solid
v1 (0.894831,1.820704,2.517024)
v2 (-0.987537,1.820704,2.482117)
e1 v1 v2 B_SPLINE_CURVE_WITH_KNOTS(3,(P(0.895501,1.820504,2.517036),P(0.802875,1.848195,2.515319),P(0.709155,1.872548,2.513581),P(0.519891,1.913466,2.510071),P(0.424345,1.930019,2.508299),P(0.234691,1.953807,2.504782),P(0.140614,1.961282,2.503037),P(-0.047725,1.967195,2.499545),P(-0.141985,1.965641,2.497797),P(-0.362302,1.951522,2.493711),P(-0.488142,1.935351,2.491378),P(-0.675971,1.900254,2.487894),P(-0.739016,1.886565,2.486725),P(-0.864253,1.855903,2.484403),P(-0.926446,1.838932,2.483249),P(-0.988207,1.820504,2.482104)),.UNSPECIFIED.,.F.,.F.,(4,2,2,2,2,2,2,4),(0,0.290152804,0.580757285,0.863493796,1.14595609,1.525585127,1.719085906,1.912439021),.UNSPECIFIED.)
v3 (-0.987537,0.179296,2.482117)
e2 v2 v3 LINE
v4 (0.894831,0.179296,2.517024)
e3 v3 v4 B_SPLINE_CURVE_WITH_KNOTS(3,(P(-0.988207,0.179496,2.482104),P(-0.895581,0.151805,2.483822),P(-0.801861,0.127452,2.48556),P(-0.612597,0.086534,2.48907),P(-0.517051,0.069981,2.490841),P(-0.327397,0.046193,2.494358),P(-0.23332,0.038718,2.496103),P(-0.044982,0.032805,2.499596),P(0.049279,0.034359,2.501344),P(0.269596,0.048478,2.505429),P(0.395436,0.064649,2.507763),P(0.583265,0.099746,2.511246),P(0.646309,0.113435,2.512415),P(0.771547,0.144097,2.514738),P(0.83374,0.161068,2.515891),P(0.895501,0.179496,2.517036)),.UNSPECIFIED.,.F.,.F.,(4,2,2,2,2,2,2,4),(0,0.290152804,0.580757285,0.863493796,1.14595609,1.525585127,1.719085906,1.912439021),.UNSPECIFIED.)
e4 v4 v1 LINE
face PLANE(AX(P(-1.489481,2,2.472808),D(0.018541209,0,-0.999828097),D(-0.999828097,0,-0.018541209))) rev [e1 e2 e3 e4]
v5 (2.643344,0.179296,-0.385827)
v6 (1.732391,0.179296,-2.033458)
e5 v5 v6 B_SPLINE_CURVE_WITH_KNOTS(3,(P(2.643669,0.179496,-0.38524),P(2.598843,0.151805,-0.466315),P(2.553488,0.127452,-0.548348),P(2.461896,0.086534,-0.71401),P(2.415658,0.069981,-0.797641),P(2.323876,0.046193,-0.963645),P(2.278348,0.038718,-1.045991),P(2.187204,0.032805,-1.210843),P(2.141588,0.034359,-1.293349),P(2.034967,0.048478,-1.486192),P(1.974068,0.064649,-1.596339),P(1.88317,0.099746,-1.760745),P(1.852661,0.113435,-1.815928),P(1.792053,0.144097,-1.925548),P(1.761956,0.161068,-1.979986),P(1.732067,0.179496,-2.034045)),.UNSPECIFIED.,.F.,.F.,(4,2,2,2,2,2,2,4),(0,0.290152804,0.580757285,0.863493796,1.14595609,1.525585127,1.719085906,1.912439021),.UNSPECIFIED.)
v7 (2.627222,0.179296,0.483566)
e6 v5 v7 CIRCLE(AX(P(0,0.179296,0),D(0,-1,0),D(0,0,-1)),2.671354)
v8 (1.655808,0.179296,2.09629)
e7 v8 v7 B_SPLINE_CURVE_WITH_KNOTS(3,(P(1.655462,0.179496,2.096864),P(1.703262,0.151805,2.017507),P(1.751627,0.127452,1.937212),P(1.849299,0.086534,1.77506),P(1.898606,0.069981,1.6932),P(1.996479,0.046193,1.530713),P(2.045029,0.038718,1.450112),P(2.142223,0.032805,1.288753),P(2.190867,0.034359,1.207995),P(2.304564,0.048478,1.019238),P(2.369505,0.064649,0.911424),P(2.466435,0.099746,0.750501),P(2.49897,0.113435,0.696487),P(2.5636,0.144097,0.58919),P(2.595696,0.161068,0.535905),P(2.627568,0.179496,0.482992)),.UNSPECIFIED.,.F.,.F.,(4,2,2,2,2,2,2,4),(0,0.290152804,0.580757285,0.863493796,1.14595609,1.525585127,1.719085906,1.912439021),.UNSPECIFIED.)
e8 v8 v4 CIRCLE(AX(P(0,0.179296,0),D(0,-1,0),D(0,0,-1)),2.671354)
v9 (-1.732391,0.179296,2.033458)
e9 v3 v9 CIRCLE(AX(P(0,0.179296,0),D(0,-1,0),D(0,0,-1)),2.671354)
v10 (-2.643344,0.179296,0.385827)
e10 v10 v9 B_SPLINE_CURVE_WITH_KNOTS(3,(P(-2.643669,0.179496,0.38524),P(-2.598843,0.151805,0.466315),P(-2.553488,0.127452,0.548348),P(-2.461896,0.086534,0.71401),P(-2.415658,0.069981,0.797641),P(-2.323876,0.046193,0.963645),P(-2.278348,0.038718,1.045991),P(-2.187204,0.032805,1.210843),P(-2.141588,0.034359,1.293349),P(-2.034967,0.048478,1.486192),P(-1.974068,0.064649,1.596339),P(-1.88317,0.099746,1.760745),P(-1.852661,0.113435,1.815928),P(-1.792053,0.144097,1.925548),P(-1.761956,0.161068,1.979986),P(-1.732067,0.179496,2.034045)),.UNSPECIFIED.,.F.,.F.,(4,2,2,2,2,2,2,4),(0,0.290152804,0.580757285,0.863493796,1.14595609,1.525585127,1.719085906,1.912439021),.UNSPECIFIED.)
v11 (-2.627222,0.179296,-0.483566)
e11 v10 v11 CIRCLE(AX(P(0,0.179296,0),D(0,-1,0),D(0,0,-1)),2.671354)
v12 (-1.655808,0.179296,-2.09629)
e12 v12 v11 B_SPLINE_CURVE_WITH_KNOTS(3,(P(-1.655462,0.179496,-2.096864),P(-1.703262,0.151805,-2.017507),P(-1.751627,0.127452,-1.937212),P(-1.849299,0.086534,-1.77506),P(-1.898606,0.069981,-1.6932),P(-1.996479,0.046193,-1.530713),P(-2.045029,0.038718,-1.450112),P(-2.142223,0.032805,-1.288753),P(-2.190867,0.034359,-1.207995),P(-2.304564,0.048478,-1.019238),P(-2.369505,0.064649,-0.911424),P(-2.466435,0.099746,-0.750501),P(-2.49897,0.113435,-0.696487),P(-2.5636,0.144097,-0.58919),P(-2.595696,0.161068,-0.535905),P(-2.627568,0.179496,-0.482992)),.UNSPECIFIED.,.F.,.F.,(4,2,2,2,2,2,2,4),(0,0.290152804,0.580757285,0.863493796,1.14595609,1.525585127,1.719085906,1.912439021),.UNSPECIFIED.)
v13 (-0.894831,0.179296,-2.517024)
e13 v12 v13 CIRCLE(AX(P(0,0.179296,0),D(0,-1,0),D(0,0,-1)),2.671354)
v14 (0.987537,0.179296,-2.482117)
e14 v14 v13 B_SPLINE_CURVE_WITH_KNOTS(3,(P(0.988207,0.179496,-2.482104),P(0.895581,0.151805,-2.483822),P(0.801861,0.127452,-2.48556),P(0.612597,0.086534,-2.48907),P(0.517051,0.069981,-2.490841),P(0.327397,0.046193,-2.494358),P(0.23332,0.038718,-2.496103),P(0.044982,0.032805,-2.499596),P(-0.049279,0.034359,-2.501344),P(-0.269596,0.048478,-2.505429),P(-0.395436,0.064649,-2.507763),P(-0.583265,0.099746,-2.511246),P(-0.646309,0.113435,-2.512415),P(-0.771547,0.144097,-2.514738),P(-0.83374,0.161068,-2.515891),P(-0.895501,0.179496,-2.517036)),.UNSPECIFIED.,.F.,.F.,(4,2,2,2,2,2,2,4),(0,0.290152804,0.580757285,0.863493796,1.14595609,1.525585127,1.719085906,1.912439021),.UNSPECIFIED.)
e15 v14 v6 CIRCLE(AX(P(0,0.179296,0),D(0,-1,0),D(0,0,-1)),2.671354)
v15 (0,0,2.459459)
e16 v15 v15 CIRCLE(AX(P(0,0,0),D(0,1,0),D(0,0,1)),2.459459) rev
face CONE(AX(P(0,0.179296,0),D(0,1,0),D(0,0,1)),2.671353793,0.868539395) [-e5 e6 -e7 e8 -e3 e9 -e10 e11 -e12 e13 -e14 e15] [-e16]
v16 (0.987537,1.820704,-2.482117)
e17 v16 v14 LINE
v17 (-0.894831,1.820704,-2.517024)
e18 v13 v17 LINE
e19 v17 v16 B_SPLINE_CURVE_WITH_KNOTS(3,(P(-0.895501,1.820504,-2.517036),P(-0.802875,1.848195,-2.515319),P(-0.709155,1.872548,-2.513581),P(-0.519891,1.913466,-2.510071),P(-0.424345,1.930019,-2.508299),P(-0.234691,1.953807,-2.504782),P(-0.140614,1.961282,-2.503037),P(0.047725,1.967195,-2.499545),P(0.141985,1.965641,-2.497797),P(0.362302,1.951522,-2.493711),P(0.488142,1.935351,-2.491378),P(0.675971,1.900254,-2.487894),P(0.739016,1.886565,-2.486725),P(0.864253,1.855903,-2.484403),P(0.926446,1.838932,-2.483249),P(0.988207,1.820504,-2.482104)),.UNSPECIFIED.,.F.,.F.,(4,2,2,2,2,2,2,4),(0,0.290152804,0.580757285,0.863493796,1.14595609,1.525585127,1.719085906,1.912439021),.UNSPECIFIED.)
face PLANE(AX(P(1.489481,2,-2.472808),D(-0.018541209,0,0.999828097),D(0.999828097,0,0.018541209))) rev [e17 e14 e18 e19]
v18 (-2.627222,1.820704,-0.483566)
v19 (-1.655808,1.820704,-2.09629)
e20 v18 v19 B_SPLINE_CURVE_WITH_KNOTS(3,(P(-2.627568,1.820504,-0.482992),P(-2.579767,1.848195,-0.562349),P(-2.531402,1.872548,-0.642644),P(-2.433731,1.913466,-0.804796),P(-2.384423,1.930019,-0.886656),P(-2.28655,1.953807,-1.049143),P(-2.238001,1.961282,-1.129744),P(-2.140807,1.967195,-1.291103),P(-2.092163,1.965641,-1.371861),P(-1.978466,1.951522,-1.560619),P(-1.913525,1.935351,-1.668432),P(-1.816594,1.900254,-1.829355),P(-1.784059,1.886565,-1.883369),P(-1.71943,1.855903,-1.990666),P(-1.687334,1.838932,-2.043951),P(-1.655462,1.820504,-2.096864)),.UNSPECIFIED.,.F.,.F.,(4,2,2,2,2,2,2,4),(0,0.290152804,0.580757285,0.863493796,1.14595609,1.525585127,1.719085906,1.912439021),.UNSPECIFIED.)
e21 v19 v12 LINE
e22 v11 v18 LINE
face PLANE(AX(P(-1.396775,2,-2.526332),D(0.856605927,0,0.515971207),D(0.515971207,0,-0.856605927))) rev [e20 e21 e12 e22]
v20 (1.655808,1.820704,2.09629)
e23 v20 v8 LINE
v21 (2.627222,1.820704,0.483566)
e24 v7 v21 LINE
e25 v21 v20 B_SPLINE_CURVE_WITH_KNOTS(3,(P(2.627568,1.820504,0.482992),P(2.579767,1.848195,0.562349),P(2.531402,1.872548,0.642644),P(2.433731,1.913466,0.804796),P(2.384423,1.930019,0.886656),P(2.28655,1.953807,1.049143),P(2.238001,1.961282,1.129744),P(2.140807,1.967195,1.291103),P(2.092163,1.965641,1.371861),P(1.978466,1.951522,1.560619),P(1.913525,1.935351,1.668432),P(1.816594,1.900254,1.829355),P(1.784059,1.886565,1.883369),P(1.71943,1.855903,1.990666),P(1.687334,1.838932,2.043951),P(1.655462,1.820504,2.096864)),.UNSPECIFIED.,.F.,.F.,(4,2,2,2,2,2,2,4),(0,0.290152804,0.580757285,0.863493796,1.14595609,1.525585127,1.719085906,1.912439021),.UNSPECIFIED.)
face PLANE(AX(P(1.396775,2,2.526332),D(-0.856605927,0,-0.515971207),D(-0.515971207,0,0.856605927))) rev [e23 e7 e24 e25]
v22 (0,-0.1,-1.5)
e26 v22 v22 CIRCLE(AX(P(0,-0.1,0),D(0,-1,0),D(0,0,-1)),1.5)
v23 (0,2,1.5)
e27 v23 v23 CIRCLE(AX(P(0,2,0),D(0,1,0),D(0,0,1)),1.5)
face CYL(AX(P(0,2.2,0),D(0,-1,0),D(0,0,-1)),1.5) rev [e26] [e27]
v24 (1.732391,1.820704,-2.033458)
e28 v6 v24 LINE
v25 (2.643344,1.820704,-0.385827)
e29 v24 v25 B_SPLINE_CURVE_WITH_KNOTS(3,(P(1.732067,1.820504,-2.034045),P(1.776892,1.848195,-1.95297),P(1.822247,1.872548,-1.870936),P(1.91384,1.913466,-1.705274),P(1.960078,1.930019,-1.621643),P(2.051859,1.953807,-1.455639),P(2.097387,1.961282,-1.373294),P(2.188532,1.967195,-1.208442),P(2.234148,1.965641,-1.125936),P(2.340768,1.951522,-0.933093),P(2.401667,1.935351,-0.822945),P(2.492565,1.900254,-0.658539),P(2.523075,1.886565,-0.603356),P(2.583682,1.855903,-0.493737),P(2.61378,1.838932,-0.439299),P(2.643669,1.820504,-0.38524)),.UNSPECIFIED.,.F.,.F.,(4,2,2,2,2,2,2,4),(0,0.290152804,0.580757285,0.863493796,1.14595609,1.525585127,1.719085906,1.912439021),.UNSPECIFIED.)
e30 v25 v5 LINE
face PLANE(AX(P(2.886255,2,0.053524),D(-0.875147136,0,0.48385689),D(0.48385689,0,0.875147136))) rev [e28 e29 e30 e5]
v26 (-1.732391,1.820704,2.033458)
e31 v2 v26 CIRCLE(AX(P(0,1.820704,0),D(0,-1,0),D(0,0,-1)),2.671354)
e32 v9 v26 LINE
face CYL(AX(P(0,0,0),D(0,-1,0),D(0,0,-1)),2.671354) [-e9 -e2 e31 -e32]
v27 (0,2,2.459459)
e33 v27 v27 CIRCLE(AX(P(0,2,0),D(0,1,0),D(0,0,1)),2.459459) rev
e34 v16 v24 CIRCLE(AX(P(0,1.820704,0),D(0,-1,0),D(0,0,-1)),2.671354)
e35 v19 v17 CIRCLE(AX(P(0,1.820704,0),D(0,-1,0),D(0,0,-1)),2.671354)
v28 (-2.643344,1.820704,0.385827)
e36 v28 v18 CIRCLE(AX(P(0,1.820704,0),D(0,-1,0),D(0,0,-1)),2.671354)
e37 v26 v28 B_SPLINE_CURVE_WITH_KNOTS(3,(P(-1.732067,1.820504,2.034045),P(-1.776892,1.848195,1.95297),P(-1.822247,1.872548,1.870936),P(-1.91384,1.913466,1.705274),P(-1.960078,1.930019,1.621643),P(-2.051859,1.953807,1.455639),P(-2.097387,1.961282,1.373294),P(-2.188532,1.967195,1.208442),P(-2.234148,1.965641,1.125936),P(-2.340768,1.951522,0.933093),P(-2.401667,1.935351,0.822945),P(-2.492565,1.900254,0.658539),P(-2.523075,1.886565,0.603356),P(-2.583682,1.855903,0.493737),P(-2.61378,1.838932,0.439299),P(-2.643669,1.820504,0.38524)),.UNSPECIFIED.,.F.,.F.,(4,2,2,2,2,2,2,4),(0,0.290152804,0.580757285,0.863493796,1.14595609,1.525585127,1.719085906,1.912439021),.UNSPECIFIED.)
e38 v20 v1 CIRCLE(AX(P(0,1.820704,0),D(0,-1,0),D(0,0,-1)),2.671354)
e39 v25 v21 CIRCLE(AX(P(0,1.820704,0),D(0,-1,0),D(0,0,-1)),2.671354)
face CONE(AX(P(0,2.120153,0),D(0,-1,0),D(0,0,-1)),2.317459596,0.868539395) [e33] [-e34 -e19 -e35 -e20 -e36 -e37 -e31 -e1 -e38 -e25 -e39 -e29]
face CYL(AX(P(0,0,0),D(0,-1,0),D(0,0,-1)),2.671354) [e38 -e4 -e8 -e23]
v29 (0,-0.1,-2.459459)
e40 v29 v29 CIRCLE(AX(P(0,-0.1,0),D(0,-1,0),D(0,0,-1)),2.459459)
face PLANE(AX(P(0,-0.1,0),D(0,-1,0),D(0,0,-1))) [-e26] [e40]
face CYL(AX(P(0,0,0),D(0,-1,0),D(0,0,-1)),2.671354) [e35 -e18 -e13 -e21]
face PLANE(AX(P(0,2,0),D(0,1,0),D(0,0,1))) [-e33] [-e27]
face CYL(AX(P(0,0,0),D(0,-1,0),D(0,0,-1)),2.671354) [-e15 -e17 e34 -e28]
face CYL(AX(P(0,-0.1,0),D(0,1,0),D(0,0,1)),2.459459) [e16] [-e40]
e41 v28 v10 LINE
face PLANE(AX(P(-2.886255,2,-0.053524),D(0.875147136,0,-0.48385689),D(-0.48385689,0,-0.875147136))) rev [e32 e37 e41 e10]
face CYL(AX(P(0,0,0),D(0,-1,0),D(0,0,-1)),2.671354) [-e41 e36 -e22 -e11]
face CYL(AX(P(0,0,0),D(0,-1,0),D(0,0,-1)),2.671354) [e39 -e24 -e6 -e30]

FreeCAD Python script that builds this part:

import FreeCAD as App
import Part
import Sketcher

V = App.Vector
Q = App.Units.Quantity


def add_polygon(sketch, points):
    """Adds a closed chain of lines whose ends are joined by coincident constraints."""
    first, n = sketch.GeometryCount, len(points)
    for a, b in zip(points, points[1:] + points[:1]):
        sketch.addGeometry(Part.LineSegment(App.Vector(*a, 0), App.Vector(*b, 0)), False)
    for i in range(n):
        sketch.addConstraint(Sketcher.Constraint("Coincident", first + i, 2, first + (i + 1) % n, 1))

doc = App.newDocument("Part")
body = doc.addObject("PartDesign::Body", "Body")

# Sketch on XZ plane
sketch1 = body.newObject("Sketcher::SketchObject", "Sketch")
sketch1.AttachmentSupport = (doc.getObject("XZ_Plane"), [""])
sketch1.MapMode = "FlatFace"
add_polygon(sketch1, [(-1.396775, -2.526332), (-2.886255, -0.053524), (-1.489481, 2.472808), (1.396775, 2.526332), (2.886255, 0.053524), (1.489481, -2.472808)])  # lines 0-5
sketch1.addConstraint(Sketcher.Constraint("Symmetric", 0, 2, 3, 2, -1, 1))
sketch1.addConstraint(Sketcher.Constraint("Symmetric", 1, 2, 4, 2, -1, 1))
sketch1.addConstraint(Sketcher.Constraint("Symmetric", 2, 2, 5, 2, -1, 1))
sketch1.addConstraint(Sketcher.Constraint("Equal", 0, 1))
sketch1.addConstraint(Sketcher.Constraint("Equal", 1, 2))
sketch1.addConstraint(Sketcher.Constraint("Distance", 0, Q("2.886751 mm")))
sketch1.addConstraint(Sketcher.Constraint("DistanceX", 1, 2, -1, 1, Q("1.489481 mm")))
sketch1.addConstraint(Sketcher.Constraint("DistanceY", -1, 1, 1, 2, Q("2.472808 mm")))
sketch1.addConstraint(Sketcher.Constraint("DistanceX", 0, 2, 2, 2, Q("4.28303 mm")))
pad1 = body.newObject("PartDesign::Pad", "Pad")
pad1.Profile = sketch1
pad1.Length = 2
pad1.Reversed = True

# Sketch on XZ plane
sketch2 = body.newObject("Sketcher::SketchObject", "Sketch001")
sketch2.AttachmentSupport = (doc.getObject("XZ_Plane"), [""])
sketch2.MapMode = "FlatFace"
sketch2.addGeometry(Part.Circle(V(0, 0, 0), V(0, 0, 1), 1.5), False)
sketch2.addConstraint(Sketcher.Constraint("Coincident", 0, 3, -1, 1))
sketch2.addConstraint(Sketcher.Constraint("Diameter", 0, Q("3 mm")))
pocket1 = body.newObject("PartDesign::Pocket", "Pocket")
pocket1.Profile = sketch2
pocket1.Length = 2.2

# Sketch on YZ plane
sketch3 = body.newObject("Sketcher::SketchObject", "Sketch002")
sketch3.AttachmentSupport = (doc.getObject("YZ_Plane"), [""])
sketch3.MapMode = "FlatFace"
add_polygon(sketch3, [(2.120153, -2.31746), (1.820704, -2.671354), (0.179296, -2.671354), (-0.120153, -2.31746), (-0.304152, -3.585642), (2.445398, -3.641464)])  # lines 0-5
sketch3.addConstraint(Sketcher.Constraint("Horizontal", 1))
sketch3.addConstraint(Sketcher.Constraint("Horizontal", 2, 2, 5, 2))
sketch3.addConstraint(Sketcher.Constraint("Equal", 0, 2))
sketch3.addConstraint(Sketcher.Constraint("DistanceX", 3, 2, 2, 2, Q("0.183999 mm")))
sketch3.addConstraint(Sketcher.Constraint("DistanceX", 1, 2, 1, 1, Q("1.641409 mm")))
sketch3.addConstraint(Sketcher.Constraint("Distance", 3, Q("1.281461 mm")))
sketch3.addConstraint(Sketcher.Constraint("DistanceY", 2, 2, -1, 1, Q("2.31746 mm")))
sketch3.addConstraint(Sketcher.Constraint("DistanceX", 3, 2, -1, 1, Q("0.304152 mm")))
sketch3.addConstraint(Sketcher.Constraint("DistanceX", 2, 2, 1, 2, Q("0.299449 mm")))
sketch3.addConstraint(Sketcher.Constraint("DistanceY", 4, 2, 0, 2, Q("0.97011 mm")))
sketch3.addConstraint(Sketcher.Constraint("DistanceX", 3, 2, 4, 2, Q("2.74955 mm")))
sketch3.addConstraint(Sketcher.Constraint("Distance", 0, Q("0.463585 mm")))
groove = body.newObject("PartDesign::Groove", "Groove")
groove.Profile = sketch3
groove.ReferenceAxis = (sketch3, ["H_Axis"])
groove.Angle = 360

# Sketch on XZ plane
sketch4 = body.newObject("Sketcher::SketchObject", "Sketch003")
sketch4.AttachmentSupport = (doc.getObject("XZ_Plane"), [""])
sketch4.MapMode = "FlatFace"
sketch4.AttachmentOffset = App.Placement(V(0, 0, 0.1), App.Rotation())
sketch4.addGeometry(Part.Circle(V(0, 0, 0), V(0, 0, 1), 2.459459), False)
sketch4.addGeometry(Part.Circle(V(0, 0, 0), V(0, 0, 1), 1.5), False)
sketch4.addConstraint(Sketcher.Constraint("Coincident", 0, 3, -1, 1))
sketch4.addConstraint(Sketcher.Constraint("Coincident", 1, 3, -1, 1))
sketch4.addConstraint(Sketcher.Constraint("Diameter", 1, Q("3 mm")))
sketch4.addConstraint(Sketcher.Constraint("Diameter", 0, Q("4.918918 mm")))
pad2 = body.newObject("PartDesign::Pad", "Pad001")
pad2.Profile = sketch4
pad2.Length = 0.1
pad2.Reversed = True

doc.recompute()
